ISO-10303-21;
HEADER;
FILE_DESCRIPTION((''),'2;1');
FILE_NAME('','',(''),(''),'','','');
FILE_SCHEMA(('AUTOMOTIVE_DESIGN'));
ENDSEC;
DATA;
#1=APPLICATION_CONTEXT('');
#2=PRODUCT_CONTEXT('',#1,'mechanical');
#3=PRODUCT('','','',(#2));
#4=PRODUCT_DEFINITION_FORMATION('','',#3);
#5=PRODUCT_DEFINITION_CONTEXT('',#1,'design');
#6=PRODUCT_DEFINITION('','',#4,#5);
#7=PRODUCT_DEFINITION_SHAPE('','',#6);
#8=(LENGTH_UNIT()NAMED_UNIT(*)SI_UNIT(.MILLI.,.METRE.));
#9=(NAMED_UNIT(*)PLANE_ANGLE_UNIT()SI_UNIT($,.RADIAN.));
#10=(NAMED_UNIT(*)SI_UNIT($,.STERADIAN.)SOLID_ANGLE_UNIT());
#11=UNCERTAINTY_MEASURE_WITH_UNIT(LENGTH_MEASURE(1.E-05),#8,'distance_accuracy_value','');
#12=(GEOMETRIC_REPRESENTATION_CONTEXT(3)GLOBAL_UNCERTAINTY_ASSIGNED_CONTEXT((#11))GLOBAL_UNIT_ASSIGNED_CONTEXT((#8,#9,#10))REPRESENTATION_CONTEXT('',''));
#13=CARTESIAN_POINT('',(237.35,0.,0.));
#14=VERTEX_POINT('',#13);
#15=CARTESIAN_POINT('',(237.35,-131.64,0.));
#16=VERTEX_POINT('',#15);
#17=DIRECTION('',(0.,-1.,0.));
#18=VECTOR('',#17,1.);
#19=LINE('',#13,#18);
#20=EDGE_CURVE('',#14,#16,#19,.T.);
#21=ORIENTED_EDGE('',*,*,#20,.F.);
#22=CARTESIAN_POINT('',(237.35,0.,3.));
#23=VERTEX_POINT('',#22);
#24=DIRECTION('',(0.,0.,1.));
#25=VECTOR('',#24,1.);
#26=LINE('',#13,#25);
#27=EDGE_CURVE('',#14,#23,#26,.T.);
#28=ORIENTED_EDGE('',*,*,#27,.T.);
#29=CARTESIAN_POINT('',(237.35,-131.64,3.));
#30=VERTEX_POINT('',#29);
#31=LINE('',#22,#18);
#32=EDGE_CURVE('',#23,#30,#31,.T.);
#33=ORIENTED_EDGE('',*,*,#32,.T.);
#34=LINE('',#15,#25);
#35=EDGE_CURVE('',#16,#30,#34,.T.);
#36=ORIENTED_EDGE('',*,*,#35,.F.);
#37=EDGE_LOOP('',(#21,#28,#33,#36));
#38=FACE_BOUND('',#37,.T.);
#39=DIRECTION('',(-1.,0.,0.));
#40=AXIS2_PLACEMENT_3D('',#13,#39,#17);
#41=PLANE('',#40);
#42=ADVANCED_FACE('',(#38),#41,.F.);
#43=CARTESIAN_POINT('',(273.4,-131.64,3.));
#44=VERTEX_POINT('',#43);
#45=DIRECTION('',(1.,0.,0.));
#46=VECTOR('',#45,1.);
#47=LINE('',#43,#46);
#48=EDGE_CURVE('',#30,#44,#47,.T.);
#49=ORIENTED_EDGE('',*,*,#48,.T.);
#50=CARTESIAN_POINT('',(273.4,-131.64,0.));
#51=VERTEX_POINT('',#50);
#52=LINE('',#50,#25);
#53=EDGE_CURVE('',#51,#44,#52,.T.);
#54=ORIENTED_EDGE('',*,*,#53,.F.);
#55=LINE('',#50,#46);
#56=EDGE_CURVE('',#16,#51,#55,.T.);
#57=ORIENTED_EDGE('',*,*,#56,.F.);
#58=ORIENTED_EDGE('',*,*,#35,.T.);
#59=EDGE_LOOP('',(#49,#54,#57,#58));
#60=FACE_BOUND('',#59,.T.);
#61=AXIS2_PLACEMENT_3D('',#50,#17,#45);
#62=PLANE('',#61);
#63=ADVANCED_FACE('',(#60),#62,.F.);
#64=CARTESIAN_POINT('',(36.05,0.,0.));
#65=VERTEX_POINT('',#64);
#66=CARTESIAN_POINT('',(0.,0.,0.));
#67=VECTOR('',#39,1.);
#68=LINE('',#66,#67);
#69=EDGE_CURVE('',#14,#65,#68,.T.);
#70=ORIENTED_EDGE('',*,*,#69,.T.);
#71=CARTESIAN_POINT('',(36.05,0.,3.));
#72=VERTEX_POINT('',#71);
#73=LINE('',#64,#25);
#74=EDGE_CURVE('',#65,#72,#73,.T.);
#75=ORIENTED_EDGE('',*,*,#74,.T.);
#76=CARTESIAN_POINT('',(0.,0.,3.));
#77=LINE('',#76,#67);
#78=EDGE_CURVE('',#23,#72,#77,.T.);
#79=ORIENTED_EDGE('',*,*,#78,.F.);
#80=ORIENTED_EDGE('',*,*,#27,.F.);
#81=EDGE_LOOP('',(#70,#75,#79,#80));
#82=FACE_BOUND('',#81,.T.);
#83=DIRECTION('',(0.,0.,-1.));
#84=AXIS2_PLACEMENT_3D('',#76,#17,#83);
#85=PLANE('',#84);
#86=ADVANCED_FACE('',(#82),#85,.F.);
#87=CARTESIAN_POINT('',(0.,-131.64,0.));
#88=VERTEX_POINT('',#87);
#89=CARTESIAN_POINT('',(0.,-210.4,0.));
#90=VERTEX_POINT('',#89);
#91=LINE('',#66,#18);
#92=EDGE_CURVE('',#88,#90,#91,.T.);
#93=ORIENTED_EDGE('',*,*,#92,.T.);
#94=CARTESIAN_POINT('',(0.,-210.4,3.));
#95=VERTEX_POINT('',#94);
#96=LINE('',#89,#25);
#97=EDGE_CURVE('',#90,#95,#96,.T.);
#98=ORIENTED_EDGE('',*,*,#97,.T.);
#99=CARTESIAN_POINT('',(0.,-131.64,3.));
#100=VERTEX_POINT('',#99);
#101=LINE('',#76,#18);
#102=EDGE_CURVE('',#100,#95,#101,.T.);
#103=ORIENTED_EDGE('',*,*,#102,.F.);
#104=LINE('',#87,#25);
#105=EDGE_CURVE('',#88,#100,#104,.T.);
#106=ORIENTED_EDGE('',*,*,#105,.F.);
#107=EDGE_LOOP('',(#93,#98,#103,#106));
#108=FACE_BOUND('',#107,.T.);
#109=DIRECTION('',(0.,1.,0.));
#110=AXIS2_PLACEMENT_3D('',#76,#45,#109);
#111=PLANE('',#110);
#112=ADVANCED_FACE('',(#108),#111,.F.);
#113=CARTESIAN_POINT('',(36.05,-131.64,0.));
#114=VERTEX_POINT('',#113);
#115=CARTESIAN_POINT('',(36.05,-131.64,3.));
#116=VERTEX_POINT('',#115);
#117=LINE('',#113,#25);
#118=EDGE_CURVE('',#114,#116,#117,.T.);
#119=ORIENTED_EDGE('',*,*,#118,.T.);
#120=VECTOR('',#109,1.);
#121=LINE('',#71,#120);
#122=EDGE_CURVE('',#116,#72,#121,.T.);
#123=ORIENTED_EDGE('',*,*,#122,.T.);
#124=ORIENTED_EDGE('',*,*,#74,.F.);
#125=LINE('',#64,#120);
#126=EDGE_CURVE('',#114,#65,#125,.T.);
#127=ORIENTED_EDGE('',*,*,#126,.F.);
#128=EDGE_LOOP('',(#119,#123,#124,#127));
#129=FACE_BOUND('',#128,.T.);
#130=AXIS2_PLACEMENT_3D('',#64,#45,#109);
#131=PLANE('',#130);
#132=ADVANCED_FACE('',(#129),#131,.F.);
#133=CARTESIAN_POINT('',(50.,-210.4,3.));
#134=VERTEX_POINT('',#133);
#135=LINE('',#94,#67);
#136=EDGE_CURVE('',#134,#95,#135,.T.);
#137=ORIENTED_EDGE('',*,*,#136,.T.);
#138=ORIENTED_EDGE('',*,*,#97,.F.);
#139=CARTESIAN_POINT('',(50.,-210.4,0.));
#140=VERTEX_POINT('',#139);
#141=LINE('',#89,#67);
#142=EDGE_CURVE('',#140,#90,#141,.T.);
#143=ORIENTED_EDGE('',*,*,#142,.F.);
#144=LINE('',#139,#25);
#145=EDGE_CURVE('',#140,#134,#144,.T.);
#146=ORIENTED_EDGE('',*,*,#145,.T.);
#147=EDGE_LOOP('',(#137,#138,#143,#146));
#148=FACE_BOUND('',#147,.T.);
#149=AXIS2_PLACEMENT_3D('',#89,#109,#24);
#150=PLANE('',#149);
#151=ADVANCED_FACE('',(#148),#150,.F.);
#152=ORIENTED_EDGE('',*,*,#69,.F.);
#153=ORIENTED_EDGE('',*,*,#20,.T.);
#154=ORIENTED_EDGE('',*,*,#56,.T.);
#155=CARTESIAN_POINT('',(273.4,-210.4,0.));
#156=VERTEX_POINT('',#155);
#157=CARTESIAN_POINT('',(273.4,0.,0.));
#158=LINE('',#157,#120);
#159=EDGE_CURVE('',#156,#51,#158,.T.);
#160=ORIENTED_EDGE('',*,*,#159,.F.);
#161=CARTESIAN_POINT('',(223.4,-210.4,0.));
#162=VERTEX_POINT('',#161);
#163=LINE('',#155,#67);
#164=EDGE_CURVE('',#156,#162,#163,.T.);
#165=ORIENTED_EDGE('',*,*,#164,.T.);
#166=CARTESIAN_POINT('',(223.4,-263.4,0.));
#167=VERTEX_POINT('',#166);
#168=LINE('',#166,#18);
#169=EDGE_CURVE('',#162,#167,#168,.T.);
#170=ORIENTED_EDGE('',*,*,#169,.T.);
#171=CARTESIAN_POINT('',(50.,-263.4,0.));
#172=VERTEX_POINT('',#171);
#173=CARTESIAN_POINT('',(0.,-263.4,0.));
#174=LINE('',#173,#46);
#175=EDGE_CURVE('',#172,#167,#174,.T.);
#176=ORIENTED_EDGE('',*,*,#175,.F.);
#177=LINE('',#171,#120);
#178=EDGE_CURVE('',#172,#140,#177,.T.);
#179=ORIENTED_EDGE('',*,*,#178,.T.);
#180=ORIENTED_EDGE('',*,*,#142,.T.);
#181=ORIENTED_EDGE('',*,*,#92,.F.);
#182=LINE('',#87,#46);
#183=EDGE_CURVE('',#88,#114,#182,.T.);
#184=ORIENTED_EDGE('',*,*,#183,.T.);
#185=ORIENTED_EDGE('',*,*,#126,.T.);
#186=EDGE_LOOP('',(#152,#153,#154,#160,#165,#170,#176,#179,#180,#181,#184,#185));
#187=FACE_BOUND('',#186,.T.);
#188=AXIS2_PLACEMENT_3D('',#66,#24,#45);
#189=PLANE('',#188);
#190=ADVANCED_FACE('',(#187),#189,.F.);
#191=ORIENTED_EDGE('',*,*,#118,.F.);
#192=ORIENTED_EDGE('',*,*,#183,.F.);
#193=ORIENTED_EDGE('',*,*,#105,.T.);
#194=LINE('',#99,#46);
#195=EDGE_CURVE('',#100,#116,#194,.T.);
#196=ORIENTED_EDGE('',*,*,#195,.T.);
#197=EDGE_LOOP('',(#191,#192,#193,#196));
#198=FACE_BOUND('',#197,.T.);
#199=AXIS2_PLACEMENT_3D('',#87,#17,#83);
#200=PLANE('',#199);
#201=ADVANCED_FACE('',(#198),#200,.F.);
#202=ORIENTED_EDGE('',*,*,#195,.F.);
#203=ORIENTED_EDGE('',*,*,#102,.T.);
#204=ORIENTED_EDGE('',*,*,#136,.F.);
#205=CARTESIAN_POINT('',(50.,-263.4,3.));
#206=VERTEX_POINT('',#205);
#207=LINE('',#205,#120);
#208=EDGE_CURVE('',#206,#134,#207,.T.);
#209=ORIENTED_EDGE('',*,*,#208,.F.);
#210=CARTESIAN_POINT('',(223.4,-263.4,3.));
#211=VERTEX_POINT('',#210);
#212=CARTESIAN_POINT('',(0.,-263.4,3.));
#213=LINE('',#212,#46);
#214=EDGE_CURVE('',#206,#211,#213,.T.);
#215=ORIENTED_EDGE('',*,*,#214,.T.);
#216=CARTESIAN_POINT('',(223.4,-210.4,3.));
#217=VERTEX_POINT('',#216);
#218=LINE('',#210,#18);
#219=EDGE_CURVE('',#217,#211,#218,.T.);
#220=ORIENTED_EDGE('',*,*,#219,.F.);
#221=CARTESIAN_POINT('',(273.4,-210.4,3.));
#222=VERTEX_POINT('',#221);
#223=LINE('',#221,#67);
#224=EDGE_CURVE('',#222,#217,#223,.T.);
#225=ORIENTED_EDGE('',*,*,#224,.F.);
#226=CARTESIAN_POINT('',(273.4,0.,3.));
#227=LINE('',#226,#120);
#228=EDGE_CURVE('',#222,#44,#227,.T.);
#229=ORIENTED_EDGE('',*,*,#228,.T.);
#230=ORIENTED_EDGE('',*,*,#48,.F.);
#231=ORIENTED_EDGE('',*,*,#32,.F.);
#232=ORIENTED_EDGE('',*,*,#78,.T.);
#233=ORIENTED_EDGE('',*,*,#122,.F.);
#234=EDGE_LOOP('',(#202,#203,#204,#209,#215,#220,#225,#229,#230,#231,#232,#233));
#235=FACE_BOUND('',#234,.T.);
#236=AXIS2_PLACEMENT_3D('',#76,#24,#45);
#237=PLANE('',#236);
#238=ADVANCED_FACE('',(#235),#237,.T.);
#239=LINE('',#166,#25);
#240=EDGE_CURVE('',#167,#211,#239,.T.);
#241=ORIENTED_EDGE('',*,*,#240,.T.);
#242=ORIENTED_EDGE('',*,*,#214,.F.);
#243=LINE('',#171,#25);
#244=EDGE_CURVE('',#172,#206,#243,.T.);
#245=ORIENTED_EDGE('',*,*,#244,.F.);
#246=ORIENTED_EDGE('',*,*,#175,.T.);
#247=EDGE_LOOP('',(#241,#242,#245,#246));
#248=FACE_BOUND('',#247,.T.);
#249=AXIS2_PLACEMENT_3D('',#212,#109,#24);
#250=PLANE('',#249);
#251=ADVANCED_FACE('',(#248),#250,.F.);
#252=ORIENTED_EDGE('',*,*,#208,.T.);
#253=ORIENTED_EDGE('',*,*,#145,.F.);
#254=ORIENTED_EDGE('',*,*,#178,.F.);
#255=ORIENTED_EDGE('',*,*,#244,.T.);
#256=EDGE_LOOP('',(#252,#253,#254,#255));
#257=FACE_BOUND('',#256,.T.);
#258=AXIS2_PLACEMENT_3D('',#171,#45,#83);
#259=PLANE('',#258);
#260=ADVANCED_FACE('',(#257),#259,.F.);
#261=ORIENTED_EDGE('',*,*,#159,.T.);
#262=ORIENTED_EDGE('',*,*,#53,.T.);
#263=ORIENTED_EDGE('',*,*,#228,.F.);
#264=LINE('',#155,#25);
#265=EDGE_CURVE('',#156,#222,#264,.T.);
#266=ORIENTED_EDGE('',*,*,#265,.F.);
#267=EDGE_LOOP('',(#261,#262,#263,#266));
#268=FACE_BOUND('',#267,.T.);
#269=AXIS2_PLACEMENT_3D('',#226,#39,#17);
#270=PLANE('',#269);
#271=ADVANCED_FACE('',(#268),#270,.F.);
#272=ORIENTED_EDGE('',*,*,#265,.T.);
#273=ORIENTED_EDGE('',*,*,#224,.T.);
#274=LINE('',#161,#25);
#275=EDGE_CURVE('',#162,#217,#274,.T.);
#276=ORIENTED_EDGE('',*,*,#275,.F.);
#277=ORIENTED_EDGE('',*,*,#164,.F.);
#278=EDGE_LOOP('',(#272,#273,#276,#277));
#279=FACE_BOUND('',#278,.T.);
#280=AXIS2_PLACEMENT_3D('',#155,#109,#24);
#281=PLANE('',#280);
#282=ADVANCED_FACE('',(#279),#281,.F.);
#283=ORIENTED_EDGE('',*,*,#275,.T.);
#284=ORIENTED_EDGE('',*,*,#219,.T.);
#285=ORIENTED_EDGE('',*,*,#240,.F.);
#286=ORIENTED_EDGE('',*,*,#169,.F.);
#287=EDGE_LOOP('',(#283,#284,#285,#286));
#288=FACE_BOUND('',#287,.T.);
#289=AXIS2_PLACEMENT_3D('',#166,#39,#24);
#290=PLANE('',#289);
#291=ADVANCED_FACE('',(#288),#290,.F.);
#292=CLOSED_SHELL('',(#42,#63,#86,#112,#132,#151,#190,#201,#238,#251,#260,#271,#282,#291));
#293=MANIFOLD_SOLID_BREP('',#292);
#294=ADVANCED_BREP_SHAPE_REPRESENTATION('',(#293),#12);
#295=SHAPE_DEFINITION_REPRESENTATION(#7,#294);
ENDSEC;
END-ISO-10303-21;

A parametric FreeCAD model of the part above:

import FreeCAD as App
import Part
import Sketcher
from FreeCAD import Vector
Q = App.Units.Quantity

doc = App.newDocument("Part")
body = doc.addObject("PartDesign::Body", "Body")

# Sketch on XY plane
sketch1 = doc.addObject("Sketcher::SketchObject", "Sketch")
body.addObject(sketch1)
sketch1.AttachmentSupport = (doc.XY_Plane, [""])
sketch1.MapMode = "FlatFace"
sketch1.addGeometry(Part.LineSegment(Vector(0, 0, 0), Vector(0, -263.4, 0)), False)
sketch1.addGeometry(Part.LineSegment(Vector(0, -263.4, 0), Vector(273.4, -263.4, 0)), False)
sketch1.addGeometry(Part.LineSegment(Vector(273.4, -263.4, 0), Vector(273.4, 0, 0)), False)
sketch1.addGeometry(Part.LineSegment(Vector(273.4, 0, 0), Vector(0, 0, 0)), False)
sketch1.addConstraint(Sketcher.Constraint("Coincident", 0, 2, 1, 1))
sketch1.addConstraint(Sketcher.Constraint("Coincident", 1, 2, 2, 1))
sketch1.addConstraint(Sketcher.Constraint("Coincident", 2, 2, 3, 1))
sketch1.addConstraint(Sketcher.Constraint("Coincident", 3, 2, 0, 1))
sketch1.addConstraint(Sketcher.Constraint("Vertical", 0))
sketch1.addConstraint(Sketcher.Constraint("Horizontal", 1))
sketch1.addConstraint(Sketcher.Constraint("Vertical", 2))
sketch1.addConstraint(Sketcher.Constraint("Horizontal", 3))
sketch1.addConstraint(Sketcher.Constraint("Coincident", 3, 2, -1, 1))
sketch1.addConstraint(Sketcher.Constraint("DistanceX", 1, 1, 1, 2, Q("273.4 mm")))
sketch1.addConstraint(Sketcher.Constraint("DistanceY", 0, 2, 0, 1, Q("263.4 mm")))
pad1 = doc.addObject("PartDesign::Pad", "Pad")
body.addObject(pad1)
pad1.Profile = sketch1
pad1.Length = 3

# Sketch on XY plane
sketch2 = doc.addObject("Sketcher::SketchObject", "Sketch001")
body.addObject(sketch2)
sketch2.AttachmentSupport = (doc.XY_Plane, [""])
sketch2.MapMode = "FlatFace"
sketch2.AttachmentOffset = App.Placement(Vector(0, 0, 3), App.Rotation())
sketch2.addGeometry(Part.LineSegment(Vector(0, 0, 0), Vector(0, -131.64, 0)), False)
sketch2.addGeometry(Part.LineSegment(Vector(0, -131.64, 0), Vector(36.05, -131.64, 0)), False)
sketch2.addGeometry(Part.LineSegment(Vector(36.05, -131.64, 0), Vector(36.05, 0, 0)), False)
sketch2.addGeometry(Part.LineSegment(Vector(36.05, 0, 0), Vector(0, 0, 0)), False)
sketch2.addGeometry(Part.LineSegment(Vector(0, -210.4, 0), Vector(0, -263.4, 0)), False)
sketch2.addGeometry(Part.LineSegment(Vector(0, -263.4, 0), Vector(50, -263.4, 0)), False)
sketch2.addGeometry(Part.LineSegment(Vector(50, -263.4, 0), Vector(50, -210.4, 0)), False)
sketch2.addGeometry(Part.LineSegment(Vector(50, -210.4, 0), Vector(0, -210.4, 0)), False)
sketch2.addGeometry(Part.LineSegment(Vector(237.35, 0, 0), Vector(237.35, -131.64, 0)), False)
sketch2.addGeometry(Part.LineSegment(Vector(237.35, -131.64, 0), Vector(273.4, -131.64, 0)), False)
sketch2.addGeometry(Part.LineSegment(Vector(273.4, -131.64, 0), Vector(273.4, 0, 0)), False)
sketch2.addGeometry(Part.LineSegment(Vector(273.4, 0, 0), Vector(237.35, 0, 0)), False)
sketch2.addGeometry(Part.LineSegment(Vector(223.4, -210.4, 0), Vector(223.4, -263.4, 0)), False)
sketch2.addGeometry(Part.LineSegment(Vector(223.4, -263.4, 0), Vector(273.4, -263.4, 0)), False)
sketch2.addGeometry(Part.LineSegment(Vector(273.4, -263.4, 0), Vector(273.4, -210.4, 0)), False)
sketch2.addGeometry(Part.LineSegment(Vector(273.4, -210.4, 0), Vector(223.4, -210.4, 0)), False)
sketch2.addConstraint(Sketcher.Constraint("Coincident", 0, 2, 1, 1))
sketch2.addConstraint(Sketcher.Constraint("Coincident", 1, 2, 2, 1))
sketch2.addConstraint(Sketcher.Constraint("Coincident", 2, 2, 3, 1))
sketch2.addConstraint(Sketcher.Constraint("Coincident", 3, 2, 0, 1))
sketch2.addConstraint(Sketcher.Constraint("Coincident", 4, 2, 5, 1))
sketch2.addConstraint(Sketcher.Constraint("Coincident", 5, 2, 6, 1))
sketch2.addConstraint(Sketcher.Constraint("Coincident", 6, 2, 7, 1))
sketch2.addConstraint(Sketcher.Constraint("Coincident", 7, 2, 4, 1))
sketch2.addConstraint(Sketcher.Constraint("Coincident", 8, 2, 9, 1))
sketch2.addConstraint(Sketcher.Constraint("Coincident", 9, 2, 10, 1))
sketch2.addConstraint(Sketcher.Constraint("Coincident", 10, 2, 11, 1))
sketch2.addConstraint(Sketcher.Constraint("Coincident", 11, 2, 8, 1))
sketch2.addConstraint(Sketcher.Constraint("Coincident", 12, 2, 13, 1))
sketch2.addConstraint(Sketcher.Constraint("Coincident", 13, 2, 14, 1))
sketch2.addConstraint(Sketcher.Constraint("Coincident", 14, 2, 15, 1))
sketch2.addConstraint(Sketcher.Constraint("Coincident", 15, 2, 12, 1))
sketch2.addConstraint(Sketcher.Constraint("Vertical", 0))
sketch2.addConstraint(Sketcher.Constraint("Horizontal", 1))
sketch2.addConstraint(Sketcher.Constraint("Vertical", 2))
sketch2.addConstraint(Sketcher.Constraint("Horizontal", 3))
sketch2.addConstraint(Sketcher.Constraint("Vertical", 4))
sketch2.addConstraint(Sketcher.Constraint("Horizontal", 5))
sketch2.addConstraint(Sketcher.Constraint("Vertical", 6))
sketch2.addConstraint(Sketcher.Constraint("Horizontal", 7))
sketch2.addConstraint(Sketcher.Constraint("Vertical", 8))
sketch2.addConstraint(Sketcher.Constraint("Horizontal", 9))
sketch2.addConstraint(Sketcher.Constraint("Vertical", 10))
sketch2.addConstraint(Sketcher.Constraint("Horizontal", 11))
sketch2.addConstraint(Sketcher.Constraint("Vertical", 12))
sketch2.addConstraint(Sketcher.Constraint("Horizontal", 13))
sketch2.addConstraint(Sketcher.Constraint("Vertical", 14))
sketch2.addConstraint(Sketcher.Constraint("Horizontal", 15))
sketch2.addConstraint(Sketcher.Constraint("Coincident", 3, 2, -1, 1))
sketch2.addConstraint(Sketcher.Constraint("PointOnObject", 4, 2, -2))
sketch2.addConstraint(Sketcher.Constraint("PointOnObject", 10, 2, -1))
sketch2.addConstraint(Sketcher.Constraint("Horizontal", 1, 2, 8, 2))
sketch2.addConstraint(Sketcher.Constraint("Horizontal", 5, 2, 12, 2))
sketch2.addConstraint(Sketcher.Constraint("Horizontal", 7, 2, 14, 2))
sketch2.addConstraint(Sketcher.Constraint("Vertical", 10, 2, 13, 2))
sketch2.addConstraint(Sketcher.Constraint("Equal", 3, 9))
sketch2.addConstraint(Sketcher.Constraint("Equal", 7, 13))
sketch2.addConstraint(Sketcher.Constraint("DistanceX", 5, 1, 5, 2, Q("50 mm")))
sketch2.addConstraint(Sketcher.Constraint("DistanceY", 4, 2, 4, 1, Q("53 mm")))
sketch2.addConstraint(Sketcher.Constraint("DistanceX", 1, 1, 1, 2, Q("36.05 mm")))
sketch2.addConstraint(Sketcher.Constraint("DistanceY", 0, 2, 0, 1, Q("131.64 mm")))
sketch2.addConstraint(Sketcher.Constraint("DistanceY", 4, 2, -1, 1, Q("263.4 mm")))
sketch2.addConstraint(Sketcher.Constraint("DistanceX", -1, 1, 9, 2, Q("273.4 mm")))
pocket1 = doc.addObject("PartDesign::Pocket", "Pocket")
body.addObject(pocket1)
pocket1.Profile = sketch2
pocket1.Type = "ThroughAll"

doc.recompute()
